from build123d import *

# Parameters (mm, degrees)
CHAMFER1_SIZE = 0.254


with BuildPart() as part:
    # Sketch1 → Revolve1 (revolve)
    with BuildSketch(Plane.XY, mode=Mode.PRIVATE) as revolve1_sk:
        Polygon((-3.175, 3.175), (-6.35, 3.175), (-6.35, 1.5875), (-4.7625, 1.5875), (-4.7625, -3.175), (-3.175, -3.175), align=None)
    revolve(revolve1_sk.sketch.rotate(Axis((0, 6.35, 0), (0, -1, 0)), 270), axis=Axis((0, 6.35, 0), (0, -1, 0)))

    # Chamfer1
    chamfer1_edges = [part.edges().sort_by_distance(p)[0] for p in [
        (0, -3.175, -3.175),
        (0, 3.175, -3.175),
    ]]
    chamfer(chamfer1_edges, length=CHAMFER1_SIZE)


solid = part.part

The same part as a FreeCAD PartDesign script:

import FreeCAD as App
import Part
import Sketcher
from FreeCAD import Vector
Q = App.Units.Quantity


def edges_at(feature, points):
    """Names of the edges that pass closest to the given points."""
    edges = feature.Shape.Edges
    near = lambda p: min(range(len(edges)), key=lambda i: edges[i].distToShape(Part.Vertex(*p))[0])
    return sorted({f"Edge{near(p) + 1}" for p in points})


def add_polygon(sketch, points):
    """Adds a closed chain of lines whose ends are joined by coincident constraints."""
    first, n = sketch.GeometryCount, len(points)
    for a, b in zip(points, points[1:] + points[:1]):
        sketch.addGeometry(Part.LineSegment(App.Vector(*a, 0), App.Vector(*b, 0)), False)
    for i in range(n):
        sketch.addConstraint(Sketcher.Constraint("Coincident", first + i, 2, first + (i + 1) % n, 1))

doc = App.newDocument("Part")
params = doc.addObject("Spreadsheet::Sheet", "Params")
for row, (alias, value) in enumerate([
    ("sketch1_height", "0.25 in"),
    ("sketch1_width", "0.125 in"),
    ("revolution_angle", "360 deg"),
    ("chamfer_size", "0.01 in"),
], start=1):
    params.set(f"A{row}", alias)
    params.set(f"B{row}", "=" + value)
    params.setAlias(f"B{row}", alias)

body = doc.addObject("PartDesign::Body", "Body")

sketch1 = doc.addObject("Sketcher::SketchObject", "Sketch")
body.addObject(sketch1)
sketch1.AttachmentSupport = (doc.XY_Plane, [""])
sketch1.MapMode = "FlatFace"
add_polygon(sketch1, [(-3.2, 3.2), (-6.3, 3.2), (-6.3, 1.6), (-4.8, 1.6), (-4.8, -3.2), (-3.2, -3.2)])
sketch1.addConstraint([
    Sketcher.Constraint("Horizontal", 0),
    Sketcher.Constraint("Vertical", 1),
    Sketcher.Constraint("Horizontal", 2),
    Sketcher.Constraint("Vertical", 3),
    Sketcher.Constraint("Horizontal", 4),
    Sketcher.Constraint("Vertical", 5),
    Sketcher.Constraint("Equal", 2, 4),
    Sketcher.Constraint("Equal", 4, 1),
    Sketcher.Constraint("DistanceY", 5, 1, 5, 2, Q("0.25 in")),
    Sketcher.Constraint("DistanceX", 0, 2, 0, 1, Q("0.125 in")),
    Sketcher.Constraint("DistanceX", 0, 2, -1, 1, Q("0.25 in")),
    Sketcher.Constraint("DistanceY", -1, 1, 0, 2, Q("0.125 in")),
])
sketch1.setExpression("Constraints[14]", "Params.sketch1_height")
sketch1.setExpression("Constraints[15]", "Params.sketch1_width")
revolution = doc.addObject("PartDesign::Revolution", "Revolution")
body.addObject(revolution)
revolution.Profile = sketch1
revolution.ReferenceAxis = (sketch1, ["V_Axis"])
revolution.setExpression("Angle", "Params.revolution_angle")
doc.recompute()

chamfer = doc.addObject("PartDesign::Chamfer", "Chamfer")
body.addObject(chamfer)
chamfer.Base = (revolution, edges_at(revolution, [(0, -3.175, -3.175), (0, 3.175, -3.175)]))
chamfer.setExpression("Size", "Params.chamfer_size")

doc.recompute()
